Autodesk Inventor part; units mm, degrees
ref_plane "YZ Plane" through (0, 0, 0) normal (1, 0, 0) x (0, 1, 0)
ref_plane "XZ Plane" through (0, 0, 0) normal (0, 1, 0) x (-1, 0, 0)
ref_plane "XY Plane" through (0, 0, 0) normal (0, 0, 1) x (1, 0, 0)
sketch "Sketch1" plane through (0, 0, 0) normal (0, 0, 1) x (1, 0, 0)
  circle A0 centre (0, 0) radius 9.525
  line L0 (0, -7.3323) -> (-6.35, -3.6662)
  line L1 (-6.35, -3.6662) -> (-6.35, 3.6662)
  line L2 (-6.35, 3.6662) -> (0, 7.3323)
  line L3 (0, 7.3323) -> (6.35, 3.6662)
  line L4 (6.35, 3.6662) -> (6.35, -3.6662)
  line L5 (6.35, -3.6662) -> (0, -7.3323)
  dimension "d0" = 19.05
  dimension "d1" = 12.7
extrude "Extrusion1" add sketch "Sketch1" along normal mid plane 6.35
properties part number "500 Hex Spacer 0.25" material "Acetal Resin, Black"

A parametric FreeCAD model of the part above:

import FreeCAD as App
import Part
import Sketcher
from FreeCAD import Vector
Q = App.Units.Quantity


def add_polygon(sketch, points):
    """Adds a closed chain of lines whose ends are joined by coincident constraints."""
    first, n = sketch.GeometryCount, len(points)
    for a, b in zip(points, points[1:] + points[:1]):
        sketch.addGeometry(Part.LineSegment(App.Vector(*a, 0), App.Vector(*b, 0)), False)
    for i in range(n):
        sketch.addConstraint(Sketcher.Constraint("Coincident", first + i, 2, first + (i + 1) % n, 1))

doc = App.newDocument("Part")
body = doc.addObject("PartDesign::Body", "Body")

# Sketch on XY plane
sketch1 = body.newObject("Sketcher::SketchObject", "Sketch")
sketch1.AttachmentSupport = (doc.getObject("XY_Plane"), [""])
sketch1.MapMode = "FlatFace"
sketch1.addGeometry(Part.Circle(Vector(0, 0, 0), Vector(0, 0, 1), 10), False)  # 0
add_polygon(sketch1, [(6, -4), (0, -7), (-6, -4), (-6, 4), (0, 7), (6, 4)])  # lines 1-6
sketch1.addConstraint([
    Sketcher.Constraint("Vertical", 3),
    Sketcher.Constraint("Vertical", 6),
    Sketcher.Constraint("Coincident", 0, 3, -1, 1),
    Sketcher.Constraint("Symmetric", 1, 2, 4, 2, -1, 1),
    Sketcher.Constraint("Symmetric", 2, 2, 5, 2, -1, 1),
    Sketcher.Constraint("PointOnObject", 1, 2, -2),
    Sketcher.Constraint("Parallel", 1, 4),
    Sketcher.Constraint("Horizontal", 3, 2, 5, 2),
    Sketcher.Constraint("Diameter", 0, Q("0.75 in")),
    Sketcher.Constraint("DistanceX", 3, 2, 5, 2, Q("0.5 in")),
    Sketcher.Constraint("Angle", 1, Q("-150.0005 deg")),
    Sketcher.Constraint("DistanceY", 1, 2, 3, 2, Q("0.433 in")),
])
pad1 = body.newObject("PartDesign::Pad", "Pad")
pad1.Profile = sketch1
pad1.Length = Q("0.25 in")
pad1.Midplane = True

doc.recompute()
